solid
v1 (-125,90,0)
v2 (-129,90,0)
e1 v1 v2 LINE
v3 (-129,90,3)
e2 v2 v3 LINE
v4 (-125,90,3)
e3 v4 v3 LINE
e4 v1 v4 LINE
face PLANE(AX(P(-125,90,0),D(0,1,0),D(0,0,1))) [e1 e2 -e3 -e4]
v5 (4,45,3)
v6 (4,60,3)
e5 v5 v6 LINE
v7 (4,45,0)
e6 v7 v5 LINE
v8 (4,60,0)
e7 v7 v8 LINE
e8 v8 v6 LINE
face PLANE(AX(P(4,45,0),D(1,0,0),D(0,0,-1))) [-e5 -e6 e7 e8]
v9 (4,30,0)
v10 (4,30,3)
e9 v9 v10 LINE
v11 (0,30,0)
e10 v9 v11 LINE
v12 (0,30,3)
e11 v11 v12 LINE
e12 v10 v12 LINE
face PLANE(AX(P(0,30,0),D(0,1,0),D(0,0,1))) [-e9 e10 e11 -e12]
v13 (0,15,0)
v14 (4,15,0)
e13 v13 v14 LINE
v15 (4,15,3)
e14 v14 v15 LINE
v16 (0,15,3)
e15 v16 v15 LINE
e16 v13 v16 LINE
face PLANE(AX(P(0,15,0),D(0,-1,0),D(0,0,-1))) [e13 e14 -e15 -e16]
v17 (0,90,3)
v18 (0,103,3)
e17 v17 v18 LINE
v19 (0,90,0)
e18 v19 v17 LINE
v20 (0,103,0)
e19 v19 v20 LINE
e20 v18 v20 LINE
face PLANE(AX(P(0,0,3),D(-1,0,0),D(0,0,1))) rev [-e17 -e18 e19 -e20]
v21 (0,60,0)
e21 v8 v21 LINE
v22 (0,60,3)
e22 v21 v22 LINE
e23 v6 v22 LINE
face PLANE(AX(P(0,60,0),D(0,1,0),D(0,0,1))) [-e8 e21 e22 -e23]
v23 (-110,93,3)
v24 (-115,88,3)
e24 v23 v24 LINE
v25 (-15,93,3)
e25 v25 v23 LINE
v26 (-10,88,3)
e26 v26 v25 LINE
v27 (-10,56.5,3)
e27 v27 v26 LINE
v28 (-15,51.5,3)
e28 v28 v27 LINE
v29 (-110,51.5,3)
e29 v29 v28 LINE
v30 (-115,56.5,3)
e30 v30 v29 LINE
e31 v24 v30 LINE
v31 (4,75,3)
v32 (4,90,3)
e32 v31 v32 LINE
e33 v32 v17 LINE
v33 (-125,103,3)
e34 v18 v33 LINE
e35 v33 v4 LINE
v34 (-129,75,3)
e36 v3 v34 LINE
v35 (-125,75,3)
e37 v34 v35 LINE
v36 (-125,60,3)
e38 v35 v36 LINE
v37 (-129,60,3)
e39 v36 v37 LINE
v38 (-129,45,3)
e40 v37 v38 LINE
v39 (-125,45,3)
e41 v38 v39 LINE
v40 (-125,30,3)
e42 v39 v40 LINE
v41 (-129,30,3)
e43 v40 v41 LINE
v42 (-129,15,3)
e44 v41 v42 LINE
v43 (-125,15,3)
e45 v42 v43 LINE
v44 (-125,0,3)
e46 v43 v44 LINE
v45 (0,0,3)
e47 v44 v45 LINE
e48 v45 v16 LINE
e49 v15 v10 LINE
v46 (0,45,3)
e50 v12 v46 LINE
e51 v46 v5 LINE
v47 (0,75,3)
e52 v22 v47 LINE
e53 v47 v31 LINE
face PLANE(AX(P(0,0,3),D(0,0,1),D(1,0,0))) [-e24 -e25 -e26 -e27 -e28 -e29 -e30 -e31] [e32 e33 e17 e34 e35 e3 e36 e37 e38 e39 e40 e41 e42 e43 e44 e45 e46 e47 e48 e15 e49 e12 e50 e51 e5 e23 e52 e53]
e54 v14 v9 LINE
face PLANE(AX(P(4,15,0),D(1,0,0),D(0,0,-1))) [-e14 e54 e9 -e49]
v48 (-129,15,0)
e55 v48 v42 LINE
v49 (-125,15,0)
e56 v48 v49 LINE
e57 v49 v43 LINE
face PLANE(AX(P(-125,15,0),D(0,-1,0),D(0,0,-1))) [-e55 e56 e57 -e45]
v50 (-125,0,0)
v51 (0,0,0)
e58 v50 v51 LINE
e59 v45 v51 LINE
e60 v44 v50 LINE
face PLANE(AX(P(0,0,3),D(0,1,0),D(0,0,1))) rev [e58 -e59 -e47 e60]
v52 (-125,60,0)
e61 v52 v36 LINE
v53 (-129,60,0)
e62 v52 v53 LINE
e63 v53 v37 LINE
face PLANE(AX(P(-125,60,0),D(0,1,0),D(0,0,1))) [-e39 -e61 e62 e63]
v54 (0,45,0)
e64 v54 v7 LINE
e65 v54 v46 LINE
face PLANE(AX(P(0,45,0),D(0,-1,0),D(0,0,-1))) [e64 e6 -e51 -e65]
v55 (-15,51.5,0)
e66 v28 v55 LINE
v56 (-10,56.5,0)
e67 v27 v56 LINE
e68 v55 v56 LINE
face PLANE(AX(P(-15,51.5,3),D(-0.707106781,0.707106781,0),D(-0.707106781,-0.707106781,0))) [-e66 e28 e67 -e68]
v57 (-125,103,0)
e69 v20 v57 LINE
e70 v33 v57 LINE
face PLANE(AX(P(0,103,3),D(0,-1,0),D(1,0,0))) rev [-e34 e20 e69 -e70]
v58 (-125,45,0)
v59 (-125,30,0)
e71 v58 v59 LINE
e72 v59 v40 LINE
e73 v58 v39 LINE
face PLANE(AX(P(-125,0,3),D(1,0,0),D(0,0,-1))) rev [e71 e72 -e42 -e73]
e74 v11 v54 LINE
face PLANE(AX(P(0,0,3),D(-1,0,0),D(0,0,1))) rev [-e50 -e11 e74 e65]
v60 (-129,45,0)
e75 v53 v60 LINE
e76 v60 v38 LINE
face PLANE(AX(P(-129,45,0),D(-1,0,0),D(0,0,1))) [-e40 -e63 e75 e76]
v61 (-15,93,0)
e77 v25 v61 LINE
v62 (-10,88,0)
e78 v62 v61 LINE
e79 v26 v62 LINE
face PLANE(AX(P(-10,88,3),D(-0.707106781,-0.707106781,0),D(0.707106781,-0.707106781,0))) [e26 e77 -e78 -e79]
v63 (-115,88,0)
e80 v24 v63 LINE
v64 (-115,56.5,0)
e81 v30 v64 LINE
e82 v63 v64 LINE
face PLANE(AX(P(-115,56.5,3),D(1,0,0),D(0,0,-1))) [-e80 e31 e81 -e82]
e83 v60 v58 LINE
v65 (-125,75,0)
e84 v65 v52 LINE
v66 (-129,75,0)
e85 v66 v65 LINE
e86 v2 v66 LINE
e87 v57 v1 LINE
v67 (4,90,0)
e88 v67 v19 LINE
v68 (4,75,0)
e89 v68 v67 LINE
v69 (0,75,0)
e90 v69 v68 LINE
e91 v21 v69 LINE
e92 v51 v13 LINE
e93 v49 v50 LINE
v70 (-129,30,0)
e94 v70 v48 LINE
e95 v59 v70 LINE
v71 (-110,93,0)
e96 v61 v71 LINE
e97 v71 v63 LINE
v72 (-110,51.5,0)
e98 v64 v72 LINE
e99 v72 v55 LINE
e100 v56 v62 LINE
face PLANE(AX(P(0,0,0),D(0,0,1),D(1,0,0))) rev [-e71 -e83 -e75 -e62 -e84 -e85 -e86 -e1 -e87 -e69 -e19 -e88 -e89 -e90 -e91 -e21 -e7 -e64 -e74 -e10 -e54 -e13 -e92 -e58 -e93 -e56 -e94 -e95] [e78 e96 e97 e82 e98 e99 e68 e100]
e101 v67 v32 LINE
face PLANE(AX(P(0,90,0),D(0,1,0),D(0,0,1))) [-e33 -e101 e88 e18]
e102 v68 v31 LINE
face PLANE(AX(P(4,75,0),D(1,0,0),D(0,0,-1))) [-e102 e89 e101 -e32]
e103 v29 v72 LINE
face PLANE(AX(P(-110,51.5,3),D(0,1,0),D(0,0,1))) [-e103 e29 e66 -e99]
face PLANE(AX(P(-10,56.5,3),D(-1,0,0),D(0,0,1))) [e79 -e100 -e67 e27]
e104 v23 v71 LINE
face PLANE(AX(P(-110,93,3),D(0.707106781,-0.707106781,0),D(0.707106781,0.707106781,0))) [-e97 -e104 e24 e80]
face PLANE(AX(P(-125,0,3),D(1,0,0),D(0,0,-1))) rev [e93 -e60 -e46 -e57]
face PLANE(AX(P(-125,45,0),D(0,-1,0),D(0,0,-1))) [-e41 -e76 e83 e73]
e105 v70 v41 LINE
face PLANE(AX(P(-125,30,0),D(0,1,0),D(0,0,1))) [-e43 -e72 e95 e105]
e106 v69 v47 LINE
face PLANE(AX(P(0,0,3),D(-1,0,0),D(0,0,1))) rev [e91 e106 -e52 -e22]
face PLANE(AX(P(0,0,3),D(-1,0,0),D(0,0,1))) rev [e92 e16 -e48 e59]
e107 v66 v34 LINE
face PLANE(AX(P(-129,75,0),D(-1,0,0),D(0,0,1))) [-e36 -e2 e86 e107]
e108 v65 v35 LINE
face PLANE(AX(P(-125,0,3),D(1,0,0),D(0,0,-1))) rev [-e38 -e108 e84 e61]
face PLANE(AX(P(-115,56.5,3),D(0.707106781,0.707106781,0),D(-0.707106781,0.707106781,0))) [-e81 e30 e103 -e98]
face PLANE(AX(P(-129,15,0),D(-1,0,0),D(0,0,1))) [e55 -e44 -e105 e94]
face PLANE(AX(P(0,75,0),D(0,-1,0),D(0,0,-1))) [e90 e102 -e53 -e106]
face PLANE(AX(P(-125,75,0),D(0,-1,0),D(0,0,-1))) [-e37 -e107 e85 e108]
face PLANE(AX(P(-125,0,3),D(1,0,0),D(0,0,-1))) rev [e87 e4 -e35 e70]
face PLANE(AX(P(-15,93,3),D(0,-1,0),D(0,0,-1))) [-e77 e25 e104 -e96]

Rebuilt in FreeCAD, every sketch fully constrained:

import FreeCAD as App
import Part
import Sketcher

V = App.Vector

doc = App.newDocument("Part")
params = doc.addObject("Spreadsheet::Sheet", "Params")
for row, (alias, value) in enumerate([
    ("sketch1_width", "125 mm"),
    ("sketch1_width2", "95 mm"),
    ("sketch1_height", "103 mm"),
    ("sketch1_height2", "31.5 mm"),
    ("pad1_length", "3 mm"),
    ("sketch2_width", "4 mm"),
    ("sketch2_height", "15 mm"),
    ("pad2_length", "3 mm"),
], start=1):
    params.set(f"A{row}", alias)
    params.set(f"B{row}", "=" + value)
    params.setAlias(f"B{row}", alias)

body = doc.addObject("PartDesign::Body", "Body")

sketch1 = body.newObject("Sketcher::SketchObject", "Sketch")
sketch1.AttachmentSupport = (doc.getObject("XY_Plane"), [""])
sketch1.MapMode = "FlatFace"
sketch1.addGeometry(Part.LineSegment(V(-125, 103, 0), V(-125, 0, 0)), False)
sketch1.addGeometry(Part.LineSegment(V(-125, 0, 0), V(0, 0, 0)), False)
sketch1.addGeometry(Part.LineSegment(V(0, 0, 0), V(0, 103, 0)), False)
sketch1.addGeometry(Part.LineSegment(V(0, 103, 0), V(-125, 103, 0)), False)
sketch1.addGeometry(Part.LineSegment(V(-110, 93, 0), V(-15, 93, 0)), False)
sketch1.addGeometry(Part.LineSegment(V(-15, 93, 0), V(-10, 88, 0)), False)
sketch1.addGeometry(Part.LineSegment(V(-10, 88, 0), V(-10, 56, 0)), False)
sketch1.addGeometry(Part.LineSegment(V(-10, 56, 0), V(-15, 52, 0)), False)
sketch1.addGeometry(Part.LineSegment(V(-15, 52, 0), V(-110, 52, 0)), False)
sketch1.addGeometry(Part.LineSegment(V(-110, 52, 0), V(-115, 56, 0)), False)
sketch1.addGeometry(Part.LineSegment(V(-115, 56, 0), V(-115, 88, 0)), False)
sketch1.addGeometry(Part.LineSegment(V(-115, 88, 0), V(-110, 93, 0)), False)
sketch1.addConstraint(Sketcher.Constraint("Coincident", 0, 2, 1, 1))
sketch1.addConstraint(Sketcher.Constraint("Coincident", 1, 2, 2, 1))
sketch1.addConstraint(Sketcher.Constraint("Coincident", 2, 2, 3, 1))
sketch1.addConstraint(Sketcher.Constraint("Coincident", 3, 2, 0, 1))
sketch1.addConstraint(Sketcher.Constraint("Coincident", 4, 2, 5, 1))
sketch1.addConstraint(Sketcher.Constraint("Coincident", 5, 2, 6, 1))
sketch1.addConstraint(Sketcher.Constraint("Coincident", 6, 2, 7, 1))
sketch1.addConstraint(Sketcher.Constraint("Coincident", 7, 2, 8, 1))
sketch1.addConstraint(Sketcher.Constraint("Coincident", 8, 2, 9, 1))
sketch1.addConstraint(Sketcher.Constraint("Coincident", 9, 2, 10, 1))
sketch1.addConstraint(Sketcher.Constraint("Coincident", 10, 2, 11, 1))
sketch1.addConstraint(Sketcher.Constraint("Coincident", 11, 2, 4, 1))
sketch1.addConstraint(Sketcher.Constraint("Vertical", 0))
sketch1.addConstraint(Sketcher.Constraint("Horizontal", 1))
sketch1.addConstraint(Sketcher.Constraint("Vertical", 2))
sketch1.addConstraint(Sketcher.Constraint("Horizontal", 3))
sketch1.addConstraint(Sketcher.Constraint("Horizontal", 4))
sketch1.addConstraint(Sketcher.Constraint("Vertical", 6))
sketch1.addConstraint(Sketcher.Constraint("Horizontal", 8))
sketch1.addConstraint(Sketcher.Constraint("Vertical", 10))
sketch1.addConstraint(Sketcher.Constraint("Coincident", 1, 2, -1, 1))
sketch1.addConstraint(Sketcher.Constraint("Perpendicular", 5, 7))
sketch1.addConstraint(Sketcher.Constraint("Perpendicular", 7, 9))
sketch1.addConstraint(Sketcher.Constraint("Perpendicular", 9, 11))
sketch1.addConstraint(Sketcher.Constraint("Horizontal", 6, 2, 9, 2))
sketch1.addConstraint(Sketcher.Constraint("Horizontal", 5, 2, 10, 2))
sketch1.addConstraint(Sketcher.Constraint("Vertical", 4, 2, 7, 2))
sketch1.addConstraint(Sketcher.Constraint("Vertical", 8, 2, 11, 2))
sketch1.addConstraint(Sketcher.Constraint("DistanceX", 1, 1, 1, 2, 125.0))
sketch1.addConstraint(Sketcher.Constraint("DistanceX", 4, 1, 4, 2, 95.0))
sketch1.addConstraint(Sketcher.Constraint("DistanceY", 0, 2, 0, 1, 103.0))
sketch1.addConstraint(Sketcher.Constraint("DistanceY", 6, 2, 6, 1, 31.5))
sketch1.addConstraint(Sketcher.Constraint("DistanceX", 4, 2, -1, 1, 15.0))
sketch1.addConstraint(Sketcher.Constraint("DistanceY", -1, 1, 4, 2, 93.0))
sketch1.addConstraint(Sketcher.Constraint("DistanceX", 5, 2, -1, 1, 10.0))
sketch1.setExpression("Constraints[28]", "Params.sketch1_width")
sketch1.setExpression("Constraints[29]", "Params.sketch1_width2")
sketch1.setExpression("Constraints[30]", "Params.sketch1_height")
sketch1.setExpression("Constraints[31]", "Params.sketch1_height2")
pad1 = body.newObject("PartDesign::Pad", "Pad")
pad1.Profile = sketch1
pad1.setExpression("Length", "Params.pad1_length")

sketch2 = body.newObject("Sketcher::SketchObject", "Sketch001")
sketch2.AttachmentSupport = (doc.getObject("XY_Plane"), [""])
sketch2.MapMode = "FlatFace"
sketch2.AttachmentOffset = App.Placement(V(0, 0, 3), App.Rotation())
sketch2.addGeometry(Part.LineSegment(V(0, 90, 0), V(0, 75, 0)), False)
sketch2.addGeometry(Part.LineSegment(V(0, 75, 0), V(4, 75, 0)), False)
sketch2.addGeometry(Part.LineSegment(V(4, 75, 0), V(4, 90, 0)), False)
sketch2.addGeometry(Part.LineSegment(V(4, 90, 0), V(0, 90, 0)), False)
sketch2.addGeometry(Part.LineSegment(V(0, 30, 0), V(0, 15, 0)), False)
sketch2.addGeometry(Part.LineSegment(V(0, 15, 0), V(4, 15, 0)), False)
sketch2.addGeometry(Part.LineSegment(V(4, 15, 0), V(4, 30, 0)), False)
sketch2.addGeometry(Part.LineSegment(V(4, 30, 0), V(0, 30, 0)), False)
sketch2.addGeometry(Part.LineSegment(V(-129, 30, 0), V(-129, 15, 0)), False)
sketch2.addGeometry(Part.LineSegment(V(-129, 15, 0), V(-125, 15, 0)), False)
sketch2.addGeometry(Part.LineSegment(V(-125, 15, 0), V(-125, 30, 0)), False)
sketch2.addGeometry(Part.LineSegment(V(-125, 30, 0), V(-129, 30, 0)), False)
sketch2.addGeometry(Part.LineSegment(V(0, 60, 0), V(0, 45, 0)), False)
sketch2.addGeometry(Part.LineSegment(V(0, 45, 0), V(4, 45, 0)), False)
sketch2.addGeometry(Part.LineSegment(V(4, 45, 0), V(4, 60, 0)), False)
sketch2.addGeometry(Part.LineSegment(V(4, 60, 0), V(0, 60, 0)), False)
sketch2.addGeometry(Part.LineSegment(V(-129, 60, 0), V(-129, 45, 0)), False)
sketch2.addGeometry(Part.LineSegment(V(-129, 45, 0), V(-125, 45, 0)), False)
sketch2.addGeometry(Part.LineSegment(V(-125, 45, 0), V(-125, 60, 0)), False)
sketch2.addGeometry(Part.LineSegment(V(-125, 60, 0), V(-129, 60, 0)), False)
sketch2.addGeometry(Part.LineSegment(V(-129, 90, 0), V(-129, 75, 0)), False)
sketch2.addGeometry(Part.LineSegment(V(-129, 75, 0), V(-125, 75, 0)), False)
sketch2.addGeometry(Part.LineSegment(V(-125, 75, 0), V(-125, 90, 0)), False)
sketch2.addGeometry(Part.LineSegment(V(-125, 90, 0), V(-129, 90, 0)), False)
sketch2.addConstraint(Sketcher.Constraint("Coincident", 0, 2, 1, 1))
sketch2.addConstraint(Sketcher.Constraint("Coincident", 1, 2, 2, 1))
sketch2.addConstraint(Sketcher.Constraint("Coincident", 2, 2, 3, 1))
sketch2.addConstraint(Sketcher.Constraint("Coincident", 3, 2, 0, 1))
sketch2.addConstraint(Sketcher.Constraint("Coincident", 4, 2, 5, 1))
sketch2.addConstraint(Sketcher.Constraint("Coincident", 5, 2, 6, 1))
sketch2.addConstraint(Sketcher.Constraint("Coincident", 6, 2, 7, 1))
sketch2.addConstraint(Sketcher.Constraint("Coincident", 7, 2, 4, 1))
sketch2.addConstraint(Sketcher.Constraint("Coincident", 8, 2, 9, 1))
sketch2.addConstraint(Sketcher.Constraint("Coincident", 9, 2, 10, 1))
sketch2.addConstraint(Sketcher.Constraint("Coincident", 10, 2, 11, 1))
sketch2.addConstraint(Sketcher.Constraint("Coincident", 11, 2, 8, 1))
sketch2.addConstraint(Sketcher.Constraint("Coincident", 12, 2, 13, 1))
sketch2.addConstraint(Sketcher.Constraint("Coincident", 13, 2, 14, 1))
sketch2.addConstraint(Sketcher.Constraint("Coincident", 14, 2, 15, 1))
sketch2.addConstraint(Sketcher.Constraint("Coincident", 15, 2, 12, 1))
sketch2.addConstraint(Sketcher.Constraint("Coincident", 16, 2, 17, 1))
sketch2.addConstraint(Sketcher.Constraint("Coincident", 17, 2, 18, 1))
sketch2.addConstraint(Sketcher.Constraint("Coincident", 18, 2, 19, 1))
sketch2.addConstraint(Sketcher.Constraint("Coincident", 19, 2, 16, 1))
sketch2.addConstraint(Sketcher.Constraint("Coincident", 20, 2, 21, 1))
sketch2.addConstraint(Sketcher.Constraint("Coincident", 21, 2, 22, 1))
sketch2.addConstraint(Sketcher.Constraint("Coincident", 22, 2, 23, 1))
sketch2.addConstraint(Sketcher.Constraint("Coincident", 23, 2, 20, 1))
sketch2.addConstraint(Sketcher.Constraint("Vertical", 0))
sketch2.addConstraint(Sketcher.Constraint("Horizontal", 1))
sketch2.addConstraint(Sketcher.Constraint("Vertical", 2))
sketch2.addConstraint(Sketcher.Constraint("Horizontal", 3))
sketch2.addConstraint(Sketcher.Constraint("Vertical", 4))
sketch2.addConstraint(Sketcher.Constraint("Horizontal", 5))
sketch2.addConstraint(Sketcher.Constraint("Vertical", 6))
sketch2.addConstraint(Sketcher.Constraint("Horizontal", 7))
sketch2.addConstraint(Sketcher.Constraint("Vertical", 8))
sketch2.addConstraint(Sketcher.Constraint("Horizontal", 9))
sketch2.addConstraint(Sketcher.Constraint("Vertical", 10))
sketch2.addConstraint(Sketcher.Constraint("Horizontal", 11))
sketch2.addConstraint(Sketcher.Constraint("Vertical", 12))
sketch2.addConstraint(Sketcher.Constraint("Horizontal", 13))
sketch2.addConstraint(Sketcher.Constraint("Vertical", 14))
sketch2.addConstraint(Sketcher.Constraint("Horizontal", 15))
sketch2.addConstraint(Sketcher.Constraint("Vertical", 16))
sketch2.addConstraint(Sketcher.Constraint("Horizontal", 17))
sketch2.addConstraint(Sketcher.Constraint("Vertical", 18))
sketch2.addConstraint(Sketcher.Constraint("Horizontal", 19))
sketch2.addConstraint(Sketcher.Constraint("Vertical", 20))
sketch2.addConstraint(Sketcher.Constraint("Horizontal", 21))
sketch2.addConstraint(Sketcher.Constraint("Vertical", 22))
sketch2.addConstraint(Sketcher.Constraint("Horizontal", 23))
sketch2.addConstraint(Sketcher.Constraint("PointOnObject", 0, 2, -2))
sketch2.addConstraint(Sketcher.Constraint("PointOnObject", 4, 2, -2))
sketch2.addConstraint(Sketcher.Constraint("PointOnObject", 12, 2, -2))
sketch2.addConstraint(Sketcher.Constraint("Horizontal", 5, 2, 8, 2))
sketch2.addConstraint(Sketcher.Constraint("Horizontal", 7, 2, 10, 2))
sketch2.addConstraint(Sketcher.Constraint("Horizontal", 13, 2, 16, 2))
sketch2.addConstraint(Sketcher.Constraint("Horizontal", 15, 2, 18, 2))
sketch2.addConstraint(Sketcher.Constraint("Horizontal", 1, 2, 20, 2))
sketch2.addConstraint(Sketcher.Constraint("Horizontal", 3, 2, 22, 2))
sketch2.addConstraint(Sketcher.Constraint("Vertical", 2, 2, 5, 2))
sketch2.addConstraint(Sketcher.Constraint("Vertical", 6, 2, 13, 2))
sketch2.addConstraint(Sketcher.Constraint("Vertical", 11, 2, 16, 2))
sketch2.addConstraint(Sketcher.Constraint("Vertical", 10, 2, 17, 2))
sketch2.addConstraint(Sketcher.Constraint("Vertical", 19, 2, 20, 2))
sketch2.addConstraint(Sketcher.Constraint("Vertical", 18, 2, 21, 2))
sketch2.addConstraint(Sketcher.Constraint("Equal", 7, 9))
sketch2.addConstraint(Sketcher.Constraint("Equal", 2, 4))
sketch2.addConstraint(Sketcher.Constraint("Equal", 10, 12))
sketch2.addConstraint(Sketcher.Constraint("DistanceX", 1, 1, 1, 2, 4.0))
sketch2.addConstraint(Sketcher.Constraint("DistanceY", 0, 2, 0, 1, 15.0))
sketch2.addConstraint(Sketcher.Constraint("DistanceY", -1, 1, 0, 2, 75.0))
sketch2.addConstraint(Sketcher.Constraint("DistanceY", -1, 1, 4, 2, 15.0))
sketch2.addConstraint(Sketcher.Constraint("DistanceX", 8, 2, -1, 1, 129.0))
sketch2.addConstraint(Sketcher.Constraint("DistanceY", -1, 1, 12, 2, 45.0))
sketch2.setExpression("Constraints[66]", "Params.sketch2_width")
sketch2.setExpression("Constraints[67]", "Params.sketch2_height")
pad2 = body.newObject("PartDesign::Pad", "Pad001")
pad2.Profile = sketch2
pad2.setExpression("Length", "Params.pad2_length")
pad2.Reversed = True

doc.recompute()
